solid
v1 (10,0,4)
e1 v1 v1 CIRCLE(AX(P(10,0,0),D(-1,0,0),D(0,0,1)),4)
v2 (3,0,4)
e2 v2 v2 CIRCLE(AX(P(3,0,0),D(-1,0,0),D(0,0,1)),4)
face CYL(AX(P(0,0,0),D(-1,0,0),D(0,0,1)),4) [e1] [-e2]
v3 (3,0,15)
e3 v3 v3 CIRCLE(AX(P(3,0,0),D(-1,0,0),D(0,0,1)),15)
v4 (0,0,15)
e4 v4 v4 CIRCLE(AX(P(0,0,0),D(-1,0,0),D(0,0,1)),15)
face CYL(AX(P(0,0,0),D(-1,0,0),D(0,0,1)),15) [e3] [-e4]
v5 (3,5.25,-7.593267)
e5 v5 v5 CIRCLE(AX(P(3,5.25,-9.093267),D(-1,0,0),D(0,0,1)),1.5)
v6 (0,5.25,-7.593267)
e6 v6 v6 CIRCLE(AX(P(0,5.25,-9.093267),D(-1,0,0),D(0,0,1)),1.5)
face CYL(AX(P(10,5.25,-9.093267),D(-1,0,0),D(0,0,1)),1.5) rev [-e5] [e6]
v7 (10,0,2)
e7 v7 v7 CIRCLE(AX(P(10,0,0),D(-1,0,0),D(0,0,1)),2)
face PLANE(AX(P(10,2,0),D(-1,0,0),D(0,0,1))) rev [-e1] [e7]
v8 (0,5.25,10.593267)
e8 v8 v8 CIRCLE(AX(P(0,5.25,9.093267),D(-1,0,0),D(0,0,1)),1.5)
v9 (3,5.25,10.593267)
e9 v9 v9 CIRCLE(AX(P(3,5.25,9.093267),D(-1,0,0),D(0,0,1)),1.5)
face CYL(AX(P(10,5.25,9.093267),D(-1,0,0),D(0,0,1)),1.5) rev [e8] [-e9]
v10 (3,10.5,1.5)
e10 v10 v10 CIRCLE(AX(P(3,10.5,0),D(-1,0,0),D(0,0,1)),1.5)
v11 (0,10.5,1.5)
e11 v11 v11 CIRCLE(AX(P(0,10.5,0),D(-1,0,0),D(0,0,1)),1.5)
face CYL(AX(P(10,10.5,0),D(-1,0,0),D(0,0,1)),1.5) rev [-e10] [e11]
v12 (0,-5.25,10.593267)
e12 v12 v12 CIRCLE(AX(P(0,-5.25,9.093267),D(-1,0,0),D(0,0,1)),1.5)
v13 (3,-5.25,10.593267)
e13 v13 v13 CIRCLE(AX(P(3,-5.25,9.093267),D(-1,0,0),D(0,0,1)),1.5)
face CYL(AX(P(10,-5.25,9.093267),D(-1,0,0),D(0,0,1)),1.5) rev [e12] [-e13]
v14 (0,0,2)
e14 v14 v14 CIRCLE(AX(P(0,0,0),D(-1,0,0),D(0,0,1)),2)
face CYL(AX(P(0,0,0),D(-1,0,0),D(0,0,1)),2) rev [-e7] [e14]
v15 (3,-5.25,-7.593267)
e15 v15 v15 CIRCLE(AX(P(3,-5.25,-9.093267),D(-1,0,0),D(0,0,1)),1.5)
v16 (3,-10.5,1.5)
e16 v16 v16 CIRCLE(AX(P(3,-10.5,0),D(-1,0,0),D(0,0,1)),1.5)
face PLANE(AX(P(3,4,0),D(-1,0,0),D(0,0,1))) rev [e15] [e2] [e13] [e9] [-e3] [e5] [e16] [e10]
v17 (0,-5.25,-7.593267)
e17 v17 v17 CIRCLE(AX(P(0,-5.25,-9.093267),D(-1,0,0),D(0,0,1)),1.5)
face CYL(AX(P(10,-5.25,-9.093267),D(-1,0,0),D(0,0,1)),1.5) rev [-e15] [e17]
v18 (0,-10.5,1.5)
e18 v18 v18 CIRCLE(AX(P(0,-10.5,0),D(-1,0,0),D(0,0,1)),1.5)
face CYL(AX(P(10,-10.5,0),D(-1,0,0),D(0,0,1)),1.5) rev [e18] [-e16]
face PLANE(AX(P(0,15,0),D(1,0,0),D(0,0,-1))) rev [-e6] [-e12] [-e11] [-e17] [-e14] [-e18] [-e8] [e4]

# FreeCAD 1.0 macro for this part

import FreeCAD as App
import Part
import Sketcher
from FreeCAD import Vector
Q = App.Units.Quantity

doc = App.newDocument("Part")
params = doc.addObject("Spreadsheet::Sheet", "Params")
for row, (alias, value) in enumerate([
    ("sketch1_width", "7 mm"),
    ("sketch1_width2", "3 mm"),
    ("sketch1_height", "11 mm"),
    ("sketch1_height2", "13 mm"),
    ("revolution_angle", "360 deg"),
    ("sketch2_diameter", "3 mm"),
], start=1):
    params.set(f"A{row}", alias)
    params.set(f"B{row}", "=" + value)
    params.setAlias(f"B{row}", alias)

body = doc.addObject("PartDesign::Body", "Body")

# Sketch on XY plane
sketch1 = doc.addObject("Sketcher::SketchObject", "Sketch")
body.addObject(sketch1)
sketch1.AttachmentSupport = (doc.XY_Plane, [""])
sketch1.MapMode = "FlatFace"
sketch1.addGeometry(Part.LineSegment(Vector(10, 4, 0), Vector(3, 4, 0)), False)
sketch1.addGeometry(Part.LineSegment(Vector(3, 4, 0), Vector(3, 15, 0)), False)
sketch1.addGeometry(Part.LineSegment(Vector(3, 15, 0), Vector(0, 15, 0)), False)
sketch1.addGeometry(Part.LineSegment(Vector(0, 15, 0), Vector(0, 2, 0)), False)
sketch1.addGeometry(Part.LineSegment(Vector(0, 2, 0), Vector(10, 2, 0)), False)
sketch1.addGeometry(Part.LineSegment(Vector(10, 2, 0), Vector(10, 4, 0)), False)
sketch1.addConstraint(Sketcher.Constraint("Coincident", 0, 2, 1, 1))
sketch1.addConstraint(Sketcher.Constraint("Coincident", 1, 2, 2, 1))
sketch1.addConstraint(Sketcher.Constraint("Coincident", 2, 2, 3, 1))
sketch1.addConstraint(Sketcher.Constraint("Coincident", 3, 2, 4, 1))
sketch1.addConstraint(Sketcher.Constraint("Coincident", 4, 2, 5, 1))
sketch1.addConstraint(Sketcher.Constraint("Coincident", 5, 2, 0, 1))
sketch1.addConstraint(Sketcher.Constraint("Horizontal", 0))
sketch1.addConstraint(Sketcher.Constraint("Vertical", 1))
sketch1.addConstraint(Sketcher.Constraint("Horizontal", 2))
sketch1.addConstraint(Sketcher.Constraint("Vertical", 3))
sketch1.addConstraint(Sketcher.Constraint("Horizontal", 4))
sketch1.addConstraint(Sketcher.Constraint("Vertical", 5))
sketch1.addConstraint(Sketcher.Constraint("PointOnObject", 2, 2, -2))
sketch1.addConstraint(Sketcher.Constraint("DistanceX", 0, 2, 0, 1, Q("7 mm")))
sketch1.addConstraint(Sketcher.Constraint("DistanceX", 2, 2, 2, 1, Q("3 mm")))
sketch1.addConstraint(Sketcher.Constraint("DistanceY", 1, 1, 1, 2, Q("11 mm")))
sketch1.addConstraint(Sketcher.Constraint("DistanceY", 3, 2, 3, 1, Q("13 mm")))
sketch1.addConstraint(Sketcher.Constraint("DistanceY", -1, 1, 0, 2, Q("4 mm")))
sketch1.setExpression("Constraints[13]", "Params.sketch1_width")
sketch1.setExpression("Constraints[14]", "Params.sketch1_width2")
sketch1.setExpression("Constraints[15]", "Params.sketch1_height")
sketch1.setExpression("Constraints[16]", "Params.sketch1_height2")
revolution = doc.addObject("PartDesign::Revolution", "Revolution")
body.addObject(revolution)
revolution.Profile = sketch1
revolution.ReferenceAxis = (sketch1, ["H_Axis"])
revolution.setExpression("Angle", "Params.revolution_angle")

# Sketch on YZ plane
sketch2 = doc.addObject("Sketcher::SketchObject", "Sketch001")
body.addObject(sketch2)
sketch2.AttachmentSupport = (doc.YZ_Plane, [""])
sketch2.MapMode = "FlatFace"
sketch2.addGeometry(Part.Circle(Vector(10.5, 0, 0), Vector(0, 0, 1), 1.5), False)
sketch2.addGeometry(Part.Circle(Vector(5.2, 9.1, 0), Vector(0, 0, 1), 1.5), False)
sketch2.addGeometry(Part.Circle(Vector(-5.2, 9.1, 0), Vector(0, 0, 1), 1.5), False)
sketch2.addGeometry(Part.Circle(Vector(-10.5, 0, 0), Vector(0, 0, 1), 1.5), False)
sketch2.addGeometry(Part.Circle(Vector(-5.2, -9.1, 0), Vector(0, 0, 1), 1.5), False)
sketch2.addGeometry(Part.Circle(Vector(5.2, -9.1, 0), Vector(0, 0, 1), 1.5), False)
sketch2.addConstraint(Sketcher.Constraint("Equal", 0, 1))
sketch2.addConstraint(Sketcher.Constraint("Equal", 1, 2))
sketch2.addConstraint(Sketcher.Constraint("Equal", 2, 3))
sketch2.addConstraint(Sketcher.Constraint("Equal", 3, 4))
sketch2.addConstraint(Sketcher.Constraint("Equal", 4, 5))
sketch2.addConstraint(Sketcher.Constraint("Symmetric", 0, 3, 3, 3, -1, 1))
sketch2.addConstraint(Sketcher.Constraint("Symmetric", 1, 3, 4, 3, -1, 1))
sketch2.addConstraint(Sketcher.Constraint("Symmetric", 2, 3, 5, 3, -1, 1))
sketch2.addConstraint(Sketcher.Constraint("Symmetric", 1, 3, 2, 3, -2))
sketch2.addConstraint(Sketcher.Constraint("PointOnObject", 0, 3, -1))
sketch2.addConstraint(Sketcher.Constraint("Diameter", 0, Q("3 mm")))
sketch2.addConstraint(Sketcher.Constraint("DistanceX", 3, 3, 0, 3, Q("21 mm")))
sketch2.addConstraint(Sketcher.Constraint("DistanceX", 2, 3, 1, 3, Q("10.5 mm")))
sketch2.addConstraint(Sketcher.Constraint("DistanceY", -1, 1, 1, 3, Q("9.093267 mm")))
sketch2.setExpression("Constraints[10]", "Params.sketch2_diameter")
pocket1 = doc.addObject("PartDesign::Pocket", "Pocket")
body.addObject(pocket1)
pocket1.Profile = sketch2
pocket1.Type = "ThroughAll"
pocket1.Reversed = True

doc.recompute()
